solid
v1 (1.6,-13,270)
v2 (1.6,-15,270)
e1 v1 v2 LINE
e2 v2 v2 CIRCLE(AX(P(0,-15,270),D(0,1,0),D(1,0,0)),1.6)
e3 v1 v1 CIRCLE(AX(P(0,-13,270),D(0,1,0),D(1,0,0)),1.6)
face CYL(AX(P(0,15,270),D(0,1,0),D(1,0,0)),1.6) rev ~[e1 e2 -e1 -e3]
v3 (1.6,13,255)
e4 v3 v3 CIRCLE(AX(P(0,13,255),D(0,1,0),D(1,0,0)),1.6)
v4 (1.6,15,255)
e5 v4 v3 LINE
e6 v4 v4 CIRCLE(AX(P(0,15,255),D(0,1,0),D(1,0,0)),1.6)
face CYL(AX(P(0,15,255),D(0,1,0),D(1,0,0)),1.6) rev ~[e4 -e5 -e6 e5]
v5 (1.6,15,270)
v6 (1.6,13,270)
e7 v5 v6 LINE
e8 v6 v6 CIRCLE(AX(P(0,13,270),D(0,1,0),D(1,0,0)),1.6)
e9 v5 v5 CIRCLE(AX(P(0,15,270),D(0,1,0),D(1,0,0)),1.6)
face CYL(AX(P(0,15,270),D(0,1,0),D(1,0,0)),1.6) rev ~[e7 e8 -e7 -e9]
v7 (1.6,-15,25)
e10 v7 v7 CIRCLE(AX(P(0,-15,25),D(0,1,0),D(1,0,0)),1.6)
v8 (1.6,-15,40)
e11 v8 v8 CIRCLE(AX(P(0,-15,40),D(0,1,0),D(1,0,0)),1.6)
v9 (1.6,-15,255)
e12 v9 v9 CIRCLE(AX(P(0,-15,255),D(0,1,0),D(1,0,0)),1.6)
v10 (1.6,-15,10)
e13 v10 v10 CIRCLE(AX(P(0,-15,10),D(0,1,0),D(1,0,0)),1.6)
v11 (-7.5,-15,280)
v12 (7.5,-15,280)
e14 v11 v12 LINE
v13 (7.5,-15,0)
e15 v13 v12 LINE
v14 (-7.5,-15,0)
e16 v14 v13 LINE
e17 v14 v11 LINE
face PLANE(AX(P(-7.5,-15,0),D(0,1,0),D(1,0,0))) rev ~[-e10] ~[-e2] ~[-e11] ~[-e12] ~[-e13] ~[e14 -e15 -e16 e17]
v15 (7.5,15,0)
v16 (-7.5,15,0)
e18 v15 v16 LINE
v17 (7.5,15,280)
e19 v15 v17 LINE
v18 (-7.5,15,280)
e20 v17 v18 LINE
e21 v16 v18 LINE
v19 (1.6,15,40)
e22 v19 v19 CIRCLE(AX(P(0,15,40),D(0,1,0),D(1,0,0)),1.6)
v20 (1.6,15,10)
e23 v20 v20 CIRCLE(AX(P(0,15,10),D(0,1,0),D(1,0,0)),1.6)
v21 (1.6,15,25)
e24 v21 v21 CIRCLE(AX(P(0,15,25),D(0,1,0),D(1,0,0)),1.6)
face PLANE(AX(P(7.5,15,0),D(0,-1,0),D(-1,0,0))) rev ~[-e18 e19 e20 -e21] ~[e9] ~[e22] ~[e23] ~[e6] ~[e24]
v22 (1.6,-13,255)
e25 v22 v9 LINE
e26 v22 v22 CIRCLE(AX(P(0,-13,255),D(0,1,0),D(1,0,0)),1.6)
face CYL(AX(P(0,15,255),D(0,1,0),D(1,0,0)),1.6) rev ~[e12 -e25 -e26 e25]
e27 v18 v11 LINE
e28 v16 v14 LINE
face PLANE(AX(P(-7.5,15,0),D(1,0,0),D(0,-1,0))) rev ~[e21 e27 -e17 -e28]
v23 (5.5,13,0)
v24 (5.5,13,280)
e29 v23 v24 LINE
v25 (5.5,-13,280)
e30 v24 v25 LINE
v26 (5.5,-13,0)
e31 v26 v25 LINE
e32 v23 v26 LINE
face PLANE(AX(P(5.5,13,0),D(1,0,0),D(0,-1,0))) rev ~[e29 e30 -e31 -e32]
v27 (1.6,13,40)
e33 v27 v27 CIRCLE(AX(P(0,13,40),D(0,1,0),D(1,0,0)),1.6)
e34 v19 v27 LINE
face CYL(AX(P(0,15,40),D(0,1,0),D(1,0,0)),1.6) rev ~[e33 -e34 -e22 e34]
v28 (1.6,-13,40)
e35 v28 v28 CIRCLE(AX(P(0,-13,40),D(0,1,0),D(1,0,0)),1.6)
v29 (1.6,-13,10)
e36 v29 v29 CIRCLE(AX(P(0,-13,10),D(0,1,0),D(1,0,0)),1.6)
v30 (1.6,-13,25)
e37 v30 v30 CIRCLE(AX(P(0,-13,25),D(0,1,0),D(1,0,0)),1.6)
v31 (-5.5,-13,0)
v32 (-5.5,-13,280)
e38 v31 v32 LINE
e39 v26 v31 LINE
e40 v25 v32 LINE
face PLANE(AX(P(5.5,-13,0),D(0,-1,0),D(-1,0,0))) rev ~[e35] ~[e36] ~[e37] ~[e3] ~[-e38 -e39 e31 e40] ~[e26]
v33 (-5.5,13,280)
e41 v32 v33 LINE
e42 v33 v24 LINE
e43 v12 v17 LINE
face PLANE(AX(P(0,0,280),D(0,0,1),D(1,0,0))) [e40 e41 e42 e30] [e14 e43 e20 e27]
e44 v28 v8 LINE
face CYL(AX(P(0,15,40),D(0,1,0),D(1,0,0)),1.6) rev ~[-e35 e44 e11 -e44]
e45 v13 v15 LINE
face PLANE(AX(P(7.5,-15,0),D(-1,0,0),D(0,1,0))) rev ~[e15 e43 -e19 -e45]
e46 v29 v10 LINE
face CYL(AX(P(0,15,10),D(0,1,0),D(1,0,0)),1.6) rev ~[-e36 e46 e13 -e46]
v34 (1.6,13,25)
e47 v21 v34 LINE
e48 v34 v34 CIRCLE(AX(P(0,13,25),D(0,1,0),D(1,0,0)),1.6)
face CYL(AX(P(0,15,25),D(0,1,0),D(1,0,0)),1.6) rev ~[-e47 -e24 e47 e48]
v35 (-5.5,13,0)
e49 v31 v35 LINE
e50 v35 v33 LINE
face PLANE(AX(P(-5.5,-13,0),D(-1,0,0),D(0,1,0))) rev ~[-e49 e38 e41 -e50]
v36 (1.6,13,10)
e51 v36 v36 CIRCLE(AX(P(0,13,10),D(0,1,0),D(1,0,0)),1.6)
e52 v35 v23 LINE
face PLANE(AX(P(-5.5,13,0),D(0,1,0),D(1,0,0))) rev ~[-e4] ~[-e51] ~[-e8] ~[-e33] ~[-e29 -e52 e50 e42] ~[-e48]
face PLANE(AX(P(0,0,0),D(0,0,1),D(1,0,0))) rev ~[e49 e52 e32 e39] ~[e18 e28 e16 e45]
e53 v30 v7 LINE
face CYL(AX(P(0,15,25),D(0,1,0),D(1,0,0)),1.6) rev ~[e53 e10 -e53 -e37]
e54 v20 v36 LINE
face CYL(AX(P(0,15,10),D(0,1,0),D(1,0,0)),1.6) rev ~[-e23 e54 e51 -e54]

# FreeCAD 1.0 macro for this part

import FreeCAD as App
import Part
import Sketcher
from FreeCAD import Vector
Q = App.Units.Quantity


def add_polygon(sketch, points):
    """Adds a closed chain of lines whose ends are joined by coincident constraints."""
    first, n = sketch.GeometryCount, len(points)
    for a, b in zip(points, points[1:] + points[:1]):
        sketch.addGeometry(Part.LineSegment(App.Vector(*a, 0), App.Vector(*b, 0)), False)
    for i in range(n):
        sketch.addConstraint(Sketcher.Constraint("Coincident", first + i, 2, first + (i + 1) % n, 1))

doc = App.newDocument("Part")
body = doc.addObject("PartDesign::Body", "Body")

sketch1 = body.newObject("Sketcher::SketchObject", "Sketch")
sketch1.AttachmentSupport = (doc.getObject("XY_Plane"), [""])
sketch1.MapMode = "FlatFace"
add_polygon(sketch1, [(8, -15), (8, 15), (-8, 15), (-8, -15)])
add_polygon(sketch1, [(-6, -13), (-6, 13), (6, 13), (6, -13)])
sketch1.addConstraint(Sketcher.Constraint("Vertical", 0))
sketch1.addConstraint(Sketcher.Constraint("Horizontal", 1))
sketch1.addConstraint(Sketcher.Constraint("Vertical", 2))
sketch1.addConstraint(Sketcher.Constraint("Horizontal", 3))
sketch1.addConstraint(Sketcher.Constraint("Vertical", 4))
sketch1.addConstraint(Sketcher.Constraint("Horizontal", 5))
sketch1.addConstraint(Sketcher.Constraint("Vertical", 6))
sketch1.addConstraint(Sketcher.Constraint("Horizontal", 7))
sketch1.addConstraint(Sketcher.Constraint("Symmetric", 0, 2, 2, 2, -1, 1))
sketch1.addConstraint(Sketcher.Constraint("Symmetric", 4, 2, 6, 2, -1, 1))
sketch1.addConstraint(Sketcher.Constraint("DistanceX", 1, 2, 1, 1, Q("15 mm")))
sketch1.addConstraint(Sketcher.Constraint("DistanceY", 0, 1, 0, 2, Q("30 mm")))
sketch1.addConstraint(Sketcher.Constraint("DistanceX", 1, 2, 4, 2, Q("2 mm")))
sketch1.addConstraint(Sketcher.Constraint("DistanceY", 4, 2, 1, 2, Q("2 mm")))
pad1 = body.newObject("PartDesign::Pad", "Pad")
pad1.Profile = sketch1
pad1.Length = 280

sketch2 = body.newObject("Sketcher::SketchObject", "Sketch001")
sketch2.AttachmentSupport = (doc.getObject("XZ_Plane"), [""])
sketch2.MapMode = "FlatFace"
sketch2.AttachmentOffset = App.Placement(Vector(0, 0, -15), App.Rotation())
sketch2.addGeometry(Part.Circle(Vector(0, 10, 0), Vector(0, 0, 1), 1.6), False)
sketch2.addGeometry(Part.Circle(Vector(0, 25, 0), Vector(0, 0, 1), 1.6), False)
sketch2.addGeometry(Part.Circle(Vector(0, 40, 0), Vector(0, 0, 1), 1.6), False)
sketch2.addGeometry(Part.Circle(Vector(0, 270, 0), Vector(0, 0, 1), 1.6), False)
sketch2.addGeometry(Part.Circle(Vector(0, 255, 0), Vector(0, 0, 1), 1.6), False)
sketch2.addConstraint(Sketcher.Constraint("Equal", 0, 1))
sketch2.addConstraint(Sketcher.Constraint("Equal", 1, 2))
sketch2.addConstraint(Sketcher.Constraint("Equal", 2, 3))
sketch2.addConstraint(Sketcher.Constraint("Equal", 3, 4))
sketch2.addConstraint(Sketcher.Constraint("PointOnObject", 0, 3, -2))
sketch2.addConstraint(Sketcher.Constraint("PointOnObject", 1, 3, -2))
sketch2.addConstraint(Sketcher.Constraint("PointOnObject", 2, 3, -2))
sketch2.addConstraint(Sketcher.Constraint("PointOnObject", 3, 3, -2))
sketch2.addConstraint(Sketcher.Constraint("PointOnObject", 4, 3, -2))
sketch2.addConstraint(Sketcher.Constraint("Diameter", 0, Q("3.2 mm")))
sketch2.addConstraint(Sketcher.Constraint("DistanceY", -1, 1, 0, 3, Q("10 mm")))
sketch2.addConstraint(Sketcher.Constraint("DistanceY", 0, 3, 1, 3, Q("15 mm")))
sketch2.addConstraint(Sketcher.Constraint("DistanceY", 1, 3, 2, 3, Q("15 mm")))
sketch2.addConstraint(Sketcher.Constraint("DistanceY", 4, 3, 3, 3, Q("15 mm")))
sketch2.addConstraint(Sketcher.Constraint("DistanceY", -1, 1, 3, 3, Q("270 mm")))
pocket1 = body.newObject("PartDesign::Pocket", "Pocket")
pocket1.Profile = sketch2
pocket1.Type = "ThroughAll"
pocket1.Reversed = True

doc.recompute()
